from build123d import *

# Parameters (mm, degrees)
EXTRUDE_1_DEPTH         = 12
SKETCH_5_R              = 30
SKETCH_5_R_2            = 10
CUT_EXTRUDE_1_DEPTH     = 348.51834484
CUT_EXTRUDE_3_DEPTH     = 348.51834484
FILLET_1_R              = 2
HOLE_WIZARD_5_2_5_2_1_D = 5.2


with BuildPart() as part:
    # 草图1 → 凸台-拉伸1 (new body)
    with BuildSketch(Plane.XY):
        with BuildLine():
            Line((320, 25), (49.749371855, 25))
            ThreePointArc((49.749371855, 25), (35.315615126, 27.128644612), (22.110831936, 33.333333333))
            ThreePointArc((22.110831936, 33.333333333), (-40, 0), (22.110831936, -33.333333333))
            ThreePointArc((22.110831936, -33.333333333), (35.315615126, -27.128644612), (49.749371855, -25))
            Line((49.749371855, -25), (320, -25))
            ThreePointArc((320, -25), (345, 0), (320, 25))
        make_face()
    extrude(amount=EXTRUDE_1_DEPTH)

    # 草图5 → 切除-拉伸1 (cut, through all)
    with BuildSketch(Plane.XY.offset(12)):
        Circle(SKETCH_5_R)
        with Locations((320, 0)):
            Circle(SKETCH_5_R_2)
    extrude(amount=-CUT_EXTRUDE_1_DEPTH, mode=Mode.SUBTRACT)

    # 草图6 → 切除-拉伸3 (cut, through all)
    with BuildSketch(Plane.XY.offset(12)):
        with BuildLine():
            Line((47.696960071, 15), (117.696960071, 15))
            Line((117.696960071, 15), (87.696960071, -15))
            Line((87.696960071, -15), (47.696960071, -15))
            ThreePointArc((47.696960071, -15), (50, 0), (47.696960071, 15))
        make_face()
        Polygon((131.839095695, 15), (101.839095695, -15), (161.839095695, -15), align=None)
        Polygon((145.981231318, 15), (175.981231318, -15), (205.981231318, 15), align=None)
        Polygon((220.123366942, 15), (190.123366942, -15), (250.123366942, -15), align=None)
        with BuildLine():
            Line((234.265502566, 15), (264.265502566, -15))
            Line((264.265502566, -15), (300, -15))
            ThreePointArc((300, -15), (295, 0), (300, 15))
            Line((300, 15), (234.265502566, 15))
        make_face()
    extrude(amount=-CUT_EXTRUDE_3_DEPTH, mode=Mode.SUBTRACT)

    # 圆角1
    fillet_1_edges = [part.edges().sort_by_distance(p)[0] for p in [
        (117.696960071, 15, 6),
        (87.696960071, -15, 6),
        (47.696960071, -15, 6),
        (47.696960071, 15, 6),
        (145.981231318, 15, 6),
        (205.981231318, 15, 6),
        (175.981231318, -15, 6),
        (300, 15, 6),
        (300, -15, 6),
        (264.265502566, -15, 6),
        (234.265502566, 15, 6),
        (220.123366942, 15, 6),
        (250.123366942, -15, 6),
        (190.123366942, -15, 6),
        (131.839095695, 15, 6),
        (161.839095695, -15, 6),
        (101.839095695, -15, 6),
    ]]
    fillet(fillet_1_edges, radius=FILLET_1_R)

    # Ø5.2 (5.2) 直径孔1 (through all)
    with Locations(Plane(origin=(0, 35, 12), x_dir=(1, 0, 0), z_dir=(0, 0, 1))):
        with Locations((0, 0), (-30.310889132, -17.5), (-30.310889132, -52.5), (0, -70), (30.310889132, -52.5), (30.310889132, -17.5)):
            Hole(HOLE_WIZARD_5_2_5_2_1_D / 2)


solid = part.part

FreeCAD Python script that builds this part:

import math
import FreeCAD as App
import Part
import Sketcher
from FreeCAD import Vector
Q = App.Units.Quantity


def edges_at(feature, points):
    """Names of the edges that pass closest to the given points."""
    edges = feature.Shape.Edges
    near = lambda p: min(range(len(edges)), key=lambda i: edges[i].distToShape(Part.Vertex(*p))[0])
    return sorted({f"Edge{near(p) + 1}" for p in points})


def add_polygon(sketch, points):
    """Adds a closed chain of lines whose ends are joined by coincident constraints."""
    first, n = sketch.GeometryCount, len(points)
    for a, b in zip(points, points[1:] + points[:1]):
        sketch.addGeometry(Part.LineSegment(App.Vector(*a, 0), App.Vector(*b, 0)), False)
    for i in range(n):
        sketch.addConstraint(Sketcher.Constraint("Coincident", first + i, 2, first + (i + 1) % n, 1))

doc = App.newDocument("Part")
body = doc.addObject("PartDesign::Body", "Body")

sketch1 = body.newObject("Sketcher::SketchObject", "Sketch")
sketch1.AttachmentSupport = (doc.getObject("XY_Plane"), [""])
sketch1.MapMode = "FlatFace"
sketch1.addGeometry(Part.LineSegment(Vector(320, 25, 0), Vector(50, 25, 0)), False)
sketch1.addGeometry(Part.ArcOfCircle(Part.Circle(Vector(50, 75, 0), Vector(0, 0, 1), 50), math.radians(-124), math.radians(-90)), False)
sketch1.addGeometry(Part.ArcOfCircle(Part.Circle(Vector(0, 0, 0), Vector(0, 0, 1), 40), math.radians(56), math.radians(304)), False)
sketch1.addGeometry(Part.ArcOfCircle(Part.Circle(Vector(50, -75, 0), Vector(0, 0, 1), 50), math.radians(90), math.radians(124)), False)
sketch1.addGeometry(Part.LineSegment(Vector(50, -25, 0), Vector(320, -25, 0)), False)
sketch1.addGeometry(Part.ArcOfCircle(Part.Circle(Vector(320, 0, 0), Vector(0, 0, 1), 25), math.radians(-90), math.radians(90)), False)
sketch1.addConstraint(Sketcher.Constraint("Tangent", 0, 2, 1, 2))
sketch1.addConstraint(Sketcher.Constraint("Tangent", 1, 1, 2, 1))
sketch1.addConstraint(Sketcher.Constraint("Tangent", 2, 2, 3, 2))
sketch1.addConstraint(Sketcher.Constraint("Tangent", 3, 1, 4, 1))
sketch1.addConstraint(Sketcher.Constraint("Tangent", 4, 2, 5, 1))
sketch1.addConstraint(Sketcher.Constraint("Tangent", 5, 2, 0, 1))
sketch1.addConstraint(Sketcher.Constraint("Horizontal", 0))
sketch1.addConstraint(Sketcher.Constraint("Horizontal", 4))
sketch1.addConstraint(Sketcher.Constraint("Coincident", 2, 3, -1, 1))
sketch1.addConstraint(Sketcher.Constraint("Equal", 1, 3))
sketch1.addConstraint(Sketcher.Constraint("PointOnObject", 5, 3, -1))
sketch1.addConstraint(Sketcher.Constraint("Radius", 1, Q("50 mm")))
sketch1.addConstraint(Sketcher.Constraint("Radius", 2, Q("40 mm")))
sketch1.addConstraint(Sketcher.Constraint("Radius", 5, Q("25 mm")))
sketch1.addConstraint(Sketcher.Constraint("DistanceX", -1, 1, 5, 3, Q("320 mm")))
pad1 = body.newObject("PartDesign::Pad", "Pad")
pad1.Profile = sketch1
pad1.Length = 12

sketch2 = body.newObject("Sketcher::SketchObject", "Sketch001")
sketch2.AttachmentSupport = (doc.getObject("XY_Plane"), [""])
sketch2.MapMode = "FlatFace"
sketch2.AttachmentOffset = App.Placement(Vector(0, 0, 12), App.Rotation())
sketch2.addGeometry(Part.Circle(Vector(0, 0, 0), Vector(0, 0, 1), 30), False)
sketch2.addGeometry(Part.Circle(Vector(320, 0, 0), Vector(0, 0, 1), 10), False)
sketch2.addConstraint(Sketcher.Constraint("Coincident", 0, 3, -1, 1))
sketch2.addConstraint(Sketcher.Constraint("PointOnObject", 1, 3, -1))
sketch2.addConstraint(Sketcher.Constraint("Diameter", 0, Q("60 mm")))
sketch2.addConstraint(Sketcher.Constraint("Diameter", 1, Q("20 mm")))
sketch2.addConstraint(Sketcher.Constraint("DistanceX", -1, 1, 1, 3, Q("320 mm")))
pocket1 = body.newObject("PartDesign::Pocket", "Pocket")
pocket1.Profile = sketch2
pocket1.Type = "ThroughAll"

sketch3 = body.newObject("Sketcher::SketchObject", "Sketch002")
sketch3.AttachmentSupport = (doc.getObject("XY_Plane"), [""])
sketch3.MapMode = "FlatFace"
sketch3.AttachmentOffset = App.Placement(Vector(0, 0, 12), App.Rotation())
sketch3.addGeometry(Part.LineSegment(Vector(118, 15, 0), Vector(48, 15, 0)), False)
sketch3.addGeometry(Part.ArcOfCircle(Part.Circle(Vector(0, 0, 0), Vector(0, 0, 1), 50), math.radians(-17), math.radians(17)), False)
sketch3.addGeometry(Part.LineSegment(Vector(48, -15, 0), Vector(88, -15, 0)), False)
sketch3.addGeometry(Part.LineSegment(Vector(88, -15, 0), Vector(118, 15, 0)), False)
add_polygon(sketch3, [(132, 15), (102, -15), (162, -15)])
add_polygon(sketch3, [(146, 15), (176, -15), (206, 15)])
add_polygon(sketch3, [(220, 15), (190, -15), (250, -15)])
sketch3.addGeometry(Part.LineSegment(Vector(234, 15, 0), Vector(264, -15, 0)), False)
sketch3.addGeometry(Part.LineSegment(Vector(264, -15, 0), Vector(300, -15, 0)), False)
sketch3.addGeometry(Part.ArcOfCircle(Part.Circle(Vector(320, 0, 0), Vector(0, 0, 1), 25), math.radians(143), math.radians(217)), False)
sketch3.addGeometry(Part.LineSegment(Vector(300, 15, 0), Vector(234, 15, 0)), False)
sketch3.addConstraint(Sketcher.Constraint("Coincident", 0, 2, 1, 2))
sketch3.addConstraint(Sketcher.Constraint("Coincident", 1, 1, 2, 1))
sketch3.addConstraint(Sketcher.Constraint("Coincident", 2, 2, 3, 1))
sketch3.addConstraint(Sketcher.Constraint("Coincident", 3, 2, 0, 1))
sketch3.addConstraint(Sketcher.Constraint("Coincident", 13, 2, 14, 1))
sketch3.addConstraint(Sketcher.Constraint("Coincident", 14, 2, 15, 2))
sketch3.addConstraint(Sketcher.Constraint("Coincident", 15, 1, 16, 1))
sketch3.addConstraint(Sketcher.Constraint("Coincident", 16, 2, 13, 1))
sketch3.addConstraint(Sketcher.Constraint("Horizontal", 0))
sketch3.addConstraint(Sketcher.Constraint("Horizontal", 2))
sketch3.addConstraint(Sketcher.Constraint("Horizontal", 5))
sketch3.addConstraint(Sketcher.Constraint("Horizontal", 9))
sketch3.addConstraint(Sketcher.Constraint("Horizontal", 11))
sketch3.addConstraint(Sketcher.Constraint("Horizontal", 14))
sketch3.addConstraint(Sketcher.Constraint("Horizontal", 16))
sketch3.addConstraint(Sketcher.Constraint("Coincident", 1, 3, -1, 1))
sketch3.addConstraint(Sketcher.Constraint("Symmetric", 14, 2, 15, 1, -1))
sketch3.addConstraint(Sketcher.Constraint("Parallel", 3, 4))
sketch3.addConstraint(Sketcher.Constraint("Perpendicular", 4, 6))
sketch3.addConstraint(Sketcher.Constraint("Parallel", 6, 7))
sketch3.addConstraint(Sketcher.Constraint("Perpendicular", 7, 8))
sketch3.addConstraint(Sketcher.Constraint("Parallel", 8, 10))
sketch3.addConstraint(Sketcher.Constraint("Perpendicular", 10, 12))
sketch3.addConstraint(Sketcher.Constraint("Parallel", 12, 13))
sketch3.addConstraint(Sketcher.Constraint("Horizontal", 2, 2, 4, 2))
sketch3.addConstraint(Sketcher.Constraint("Horizontal", 3, 2, 6, 2))
sketch3.addConstraint(Sketcher.Constraint("Horizontal", 5, 2, 7, 2))
sketch3.addConstraint(Sketcher.Constraint("Horizontal", 6, 2, 8, 2))
sketch3.addConstraint(Sketcher.Constraint("Horizontal", 7, 2, 10, 2))
sketch3.addConstraint(Sketcher.Constraint("Horizontal", 9, 2, 12, 2))
sketch3.addConstraint(Sketcher.Constraint("Horizontal", 11, 2, 13, 2))
sketch3.addConstraint(Sketcher.Constraint("Horizontal", 12, 2, 15, 1))
sketch3.addConstraint(Sketcher.Constraint("Equal", 4, 6))
sketch3.addConstraint(Sketcher.Constraint("Radius", 1, Q("50 mm")))
sketch3.addConstraint(Sketcher.Constraint("Radius", 15, Q("25 mm")))
sketch3.addConstraint(Sketcher.Constraint("DistanceX", 0, 2, 0, 1, Q("70 mm")))
sketch3.addConstraint(Sketcher.Constraint("DistanceX", 2, 1, 2, 2, Q("40 mm")))
sketch3.addConstraint(Sketcher.Constraint("DistanceX", -1, 1, 15, 3, Q("320 mm")))
sketch3.addConstraint(Sketcher.Constraint("DistanceX", 14, 1, 14, 2, Q("35.734497 mm")))
sketch3.addConstraint(Sketcher.Constraint("DistanceX", -1, 1, 7, 2, Q("175.981231 mm")))
sketch3.addConstraint(Sketcher.Constraint("DistanceX", 5, 2, 10, 2, Q("28.284271 mm")))
sketch3.addConstraint(Sketcher.Constraint("DistanceX", -1, 1, 4, 2, Q("101.839096 mm")))
pocket2 = body.newObject("PartDesign::Pocket", "Pocket001")
pocket2.Profile = sketch3
pocket2.Type = "ThroughAll"
doc.recompute()

fillet = body.newObject("PartDesign::Fillet", "Fillet")
fillet.Base = (pocket2, edges_at(pocket2, [
    (117.697, 15, 6),
    (87.697, -15, 6),
    (47.697, -15, 6),
    (47.697, 15, 6),
    (145.981, 15, 6),
    (205.981, 15, 6),
    (175.981, -15, 6),
    (300, 15, 6),
    (300, -15, 6),
    (264.266, -15, 6),
    (234.266, 15, 6),
    (220.123, 15, 6),
    (250.123, -15, 6),
    (190.123, -15, 6),
    (131.839, 15, 6),
    (161.839, -15, 6),
    (101.839, -15, 6),
]))
fillet.Radius = 2

sketch4 = body.newObject("Sketcher::SketchObject", "Sketch003")
sketch4.AttachmentSupport = (doc.getObject("XY_Plane"), [""])
sketch4.MapMode = "FlatFace"
sketch4.AttachmentOffset = App.Placement(Vector(0, 0, 12), App.Rotation())
sketch4.addGeometry(Part.Circle(Vector(0, 35, 0), Vector(0, 0, 1), 2.6), False)
sketch4.addGeometry(Part.Circle(Vector(-30.3, 17.5, 0), Vector(0, 0, 1), 2.6), False)
sketch4.addGeometry(Part.Circle(Vector(-30.3, -17.5, 0), Vector(0, 0, 1), 2.6), False)
sketch4.addGeometry(Part.Circle(Vector(0, -35, 0), Vector(0, 0, 1), 2.6), False)
sketch4.addGeometry(Part.Circle(Vector(30.3, -17.5, 0), Vector(0, 0, 1), 2.6), False)
sketch4.addGeometry(Part.Circle(Vector(30.3, 17.5, 0), Vector(0, 0, 1), 2.6), False)
sketch4.addConstraint(Sketcher.Constraint("Equal", 0, 1))
sketch4.addConstraint(Sketcher.Constraint("Equal", 1, 2))
sketch4.addConstraint(Sketcher.Constraint("Equal", 2, 3))
sketch4.addConstraint(Sketcher.Constraint("Equal", 3, 4))
sketch4.addConstraint(Sketcher.Constraint("Equal", 4, 5))
sketch4.addConstraint(Sketcher.Constraint("Symmetric", 0, 3, 3, 3, -1, 1))
sketch4.addConstraint(Sketcher.Constraint("Symmetric", 1, 3, 4, 3, -1, 1))
sketch4.addConstraint(Sketcher.Constraint("Symmetric", 2, 3, 5, 3, -1, 1))
sketch4.addConstraint(Sketcher.Constraint("Symmetric", 2, 3, 4, 3, -2))
sketch4.addConstraint(Sketcher.Constraint("PointOnObject", 0, 3, -2))
sketch4.addConstraint(Sketcher.Constraint("Diameter", 0, Q("5.2 mm")))
sketch4.addConstraint(Sketcher.Constraint("DistanceY", -1, 1, 0, 3, Q("35 mm")))
sketch4.addConstraint(Sketcher.Constraint("DistanceY", 2, 3, 1, 3, Q("35 mm")))
sketch4.addConstraint(Sketcher.Constraint("DistanceX", 1, 3, -1, 1, Q("30.310889 mm")))
doc.recompute()
hole = body.newObject("PartDesign::Hole", "Hole")
hole.Profile = sketch4
hole.ThreadType = "None"
hole.Diameter = 5.2
hole.DepthType = "ThroughAll"

doc.recompute()
